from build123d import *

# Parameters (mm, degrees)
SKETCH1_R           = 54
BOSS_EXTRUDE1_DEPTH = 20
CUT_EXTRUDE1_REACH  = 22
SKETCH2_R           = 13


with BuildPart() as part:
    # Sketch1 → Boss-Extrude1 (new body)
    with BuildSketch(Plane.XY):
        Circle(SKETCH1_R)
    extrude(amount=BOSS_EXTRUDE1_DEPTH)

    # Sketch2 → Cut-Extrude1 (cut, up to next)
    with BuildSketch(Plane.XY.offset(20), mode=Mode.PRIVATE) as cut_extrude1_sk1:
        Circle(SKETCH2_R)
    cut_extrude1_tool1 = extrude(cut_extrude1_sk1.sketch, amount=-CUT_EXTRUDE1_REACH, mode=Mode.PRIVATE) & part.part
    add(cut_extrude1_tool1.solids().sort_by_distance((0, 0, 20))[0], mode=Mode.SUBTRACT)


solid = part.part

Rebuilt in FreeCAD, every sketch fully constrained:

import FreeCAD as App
import Part
import Sketcher
from FreeCAD import Vector
Q = App.Units.Quantity

doc = App.newDocument("Part")
params = doc.addObject("Spreadsheet::Sheet", "Params")
for row, (alias, value) in enumerate([
    ("sketch1_diameter", "108 mm"),
    ("pad1_length", "20 mm"),
    ("sketch2_diameter", "26 mm"),
], start=1):
    params.set(f"A{row}", alias)
    params.set(f"B{row}", "=" + value)
    params.setAlias(f"B{row}", alias)

body = doc.addObject("PartDesign::Body", "Body")

sketch1 = body.newObject("Sketcher::SketchObject", "Sketch")
sketch1.AttachmentSupport = (doc.getObject("XY_Plane"), [""])
sketch1.MapMode = "FlatFace"
sketch1.addGeometry(Part.Circle(Vector(0, 0, 0), Vector(0, 0, 1), 54), False)
sketch1.addConstraint([
    Sketcher.Constraint("Coincident", 0, 3, -1, 1),
    Sketcher.Constraint("Diameter", 0, Q("108 mm")),
])
sketch1.setExpression("Constraints[1]", "Params.sketch1_diameter")
pad1 = body.newObject("PartDesign::Pad", "Pad")
pad1.Profile = sketch1
pad1.setExpression("Length", "Params.pad1_length")

sketch2 = body.newObject("Sketcher::SketchObject", "Sketch001")
sketch2.AttachmentSupport = (doc.getObject("XY_Plane"), [""])
sketch2.MapMode = "FlatFace"
sketch2.AttachmentOffset = App.Placement(Vector(0, 0, 20), App.Rotation())
sketch2.addGeometry(Part.Circle(Vector(0, 0, 0), Vector(0, 0, 1), 13), False)
sketch2.addConstraint([
    Sketcher.Constraint("Coincident", 0, 3, -1, 1),
    Sketcher.Constraint("Diameter", 0, Q("26 mm")),
])
sketch2.setExpression("Constraints[1]", "Params.sketch2_diameter")
pocket1 = body.newObject("PartDesign::Pocket", "Pocket")
pocket1.Profile = sketch2
pocket1.Type = "UpToFirst"

doc.recompute()
